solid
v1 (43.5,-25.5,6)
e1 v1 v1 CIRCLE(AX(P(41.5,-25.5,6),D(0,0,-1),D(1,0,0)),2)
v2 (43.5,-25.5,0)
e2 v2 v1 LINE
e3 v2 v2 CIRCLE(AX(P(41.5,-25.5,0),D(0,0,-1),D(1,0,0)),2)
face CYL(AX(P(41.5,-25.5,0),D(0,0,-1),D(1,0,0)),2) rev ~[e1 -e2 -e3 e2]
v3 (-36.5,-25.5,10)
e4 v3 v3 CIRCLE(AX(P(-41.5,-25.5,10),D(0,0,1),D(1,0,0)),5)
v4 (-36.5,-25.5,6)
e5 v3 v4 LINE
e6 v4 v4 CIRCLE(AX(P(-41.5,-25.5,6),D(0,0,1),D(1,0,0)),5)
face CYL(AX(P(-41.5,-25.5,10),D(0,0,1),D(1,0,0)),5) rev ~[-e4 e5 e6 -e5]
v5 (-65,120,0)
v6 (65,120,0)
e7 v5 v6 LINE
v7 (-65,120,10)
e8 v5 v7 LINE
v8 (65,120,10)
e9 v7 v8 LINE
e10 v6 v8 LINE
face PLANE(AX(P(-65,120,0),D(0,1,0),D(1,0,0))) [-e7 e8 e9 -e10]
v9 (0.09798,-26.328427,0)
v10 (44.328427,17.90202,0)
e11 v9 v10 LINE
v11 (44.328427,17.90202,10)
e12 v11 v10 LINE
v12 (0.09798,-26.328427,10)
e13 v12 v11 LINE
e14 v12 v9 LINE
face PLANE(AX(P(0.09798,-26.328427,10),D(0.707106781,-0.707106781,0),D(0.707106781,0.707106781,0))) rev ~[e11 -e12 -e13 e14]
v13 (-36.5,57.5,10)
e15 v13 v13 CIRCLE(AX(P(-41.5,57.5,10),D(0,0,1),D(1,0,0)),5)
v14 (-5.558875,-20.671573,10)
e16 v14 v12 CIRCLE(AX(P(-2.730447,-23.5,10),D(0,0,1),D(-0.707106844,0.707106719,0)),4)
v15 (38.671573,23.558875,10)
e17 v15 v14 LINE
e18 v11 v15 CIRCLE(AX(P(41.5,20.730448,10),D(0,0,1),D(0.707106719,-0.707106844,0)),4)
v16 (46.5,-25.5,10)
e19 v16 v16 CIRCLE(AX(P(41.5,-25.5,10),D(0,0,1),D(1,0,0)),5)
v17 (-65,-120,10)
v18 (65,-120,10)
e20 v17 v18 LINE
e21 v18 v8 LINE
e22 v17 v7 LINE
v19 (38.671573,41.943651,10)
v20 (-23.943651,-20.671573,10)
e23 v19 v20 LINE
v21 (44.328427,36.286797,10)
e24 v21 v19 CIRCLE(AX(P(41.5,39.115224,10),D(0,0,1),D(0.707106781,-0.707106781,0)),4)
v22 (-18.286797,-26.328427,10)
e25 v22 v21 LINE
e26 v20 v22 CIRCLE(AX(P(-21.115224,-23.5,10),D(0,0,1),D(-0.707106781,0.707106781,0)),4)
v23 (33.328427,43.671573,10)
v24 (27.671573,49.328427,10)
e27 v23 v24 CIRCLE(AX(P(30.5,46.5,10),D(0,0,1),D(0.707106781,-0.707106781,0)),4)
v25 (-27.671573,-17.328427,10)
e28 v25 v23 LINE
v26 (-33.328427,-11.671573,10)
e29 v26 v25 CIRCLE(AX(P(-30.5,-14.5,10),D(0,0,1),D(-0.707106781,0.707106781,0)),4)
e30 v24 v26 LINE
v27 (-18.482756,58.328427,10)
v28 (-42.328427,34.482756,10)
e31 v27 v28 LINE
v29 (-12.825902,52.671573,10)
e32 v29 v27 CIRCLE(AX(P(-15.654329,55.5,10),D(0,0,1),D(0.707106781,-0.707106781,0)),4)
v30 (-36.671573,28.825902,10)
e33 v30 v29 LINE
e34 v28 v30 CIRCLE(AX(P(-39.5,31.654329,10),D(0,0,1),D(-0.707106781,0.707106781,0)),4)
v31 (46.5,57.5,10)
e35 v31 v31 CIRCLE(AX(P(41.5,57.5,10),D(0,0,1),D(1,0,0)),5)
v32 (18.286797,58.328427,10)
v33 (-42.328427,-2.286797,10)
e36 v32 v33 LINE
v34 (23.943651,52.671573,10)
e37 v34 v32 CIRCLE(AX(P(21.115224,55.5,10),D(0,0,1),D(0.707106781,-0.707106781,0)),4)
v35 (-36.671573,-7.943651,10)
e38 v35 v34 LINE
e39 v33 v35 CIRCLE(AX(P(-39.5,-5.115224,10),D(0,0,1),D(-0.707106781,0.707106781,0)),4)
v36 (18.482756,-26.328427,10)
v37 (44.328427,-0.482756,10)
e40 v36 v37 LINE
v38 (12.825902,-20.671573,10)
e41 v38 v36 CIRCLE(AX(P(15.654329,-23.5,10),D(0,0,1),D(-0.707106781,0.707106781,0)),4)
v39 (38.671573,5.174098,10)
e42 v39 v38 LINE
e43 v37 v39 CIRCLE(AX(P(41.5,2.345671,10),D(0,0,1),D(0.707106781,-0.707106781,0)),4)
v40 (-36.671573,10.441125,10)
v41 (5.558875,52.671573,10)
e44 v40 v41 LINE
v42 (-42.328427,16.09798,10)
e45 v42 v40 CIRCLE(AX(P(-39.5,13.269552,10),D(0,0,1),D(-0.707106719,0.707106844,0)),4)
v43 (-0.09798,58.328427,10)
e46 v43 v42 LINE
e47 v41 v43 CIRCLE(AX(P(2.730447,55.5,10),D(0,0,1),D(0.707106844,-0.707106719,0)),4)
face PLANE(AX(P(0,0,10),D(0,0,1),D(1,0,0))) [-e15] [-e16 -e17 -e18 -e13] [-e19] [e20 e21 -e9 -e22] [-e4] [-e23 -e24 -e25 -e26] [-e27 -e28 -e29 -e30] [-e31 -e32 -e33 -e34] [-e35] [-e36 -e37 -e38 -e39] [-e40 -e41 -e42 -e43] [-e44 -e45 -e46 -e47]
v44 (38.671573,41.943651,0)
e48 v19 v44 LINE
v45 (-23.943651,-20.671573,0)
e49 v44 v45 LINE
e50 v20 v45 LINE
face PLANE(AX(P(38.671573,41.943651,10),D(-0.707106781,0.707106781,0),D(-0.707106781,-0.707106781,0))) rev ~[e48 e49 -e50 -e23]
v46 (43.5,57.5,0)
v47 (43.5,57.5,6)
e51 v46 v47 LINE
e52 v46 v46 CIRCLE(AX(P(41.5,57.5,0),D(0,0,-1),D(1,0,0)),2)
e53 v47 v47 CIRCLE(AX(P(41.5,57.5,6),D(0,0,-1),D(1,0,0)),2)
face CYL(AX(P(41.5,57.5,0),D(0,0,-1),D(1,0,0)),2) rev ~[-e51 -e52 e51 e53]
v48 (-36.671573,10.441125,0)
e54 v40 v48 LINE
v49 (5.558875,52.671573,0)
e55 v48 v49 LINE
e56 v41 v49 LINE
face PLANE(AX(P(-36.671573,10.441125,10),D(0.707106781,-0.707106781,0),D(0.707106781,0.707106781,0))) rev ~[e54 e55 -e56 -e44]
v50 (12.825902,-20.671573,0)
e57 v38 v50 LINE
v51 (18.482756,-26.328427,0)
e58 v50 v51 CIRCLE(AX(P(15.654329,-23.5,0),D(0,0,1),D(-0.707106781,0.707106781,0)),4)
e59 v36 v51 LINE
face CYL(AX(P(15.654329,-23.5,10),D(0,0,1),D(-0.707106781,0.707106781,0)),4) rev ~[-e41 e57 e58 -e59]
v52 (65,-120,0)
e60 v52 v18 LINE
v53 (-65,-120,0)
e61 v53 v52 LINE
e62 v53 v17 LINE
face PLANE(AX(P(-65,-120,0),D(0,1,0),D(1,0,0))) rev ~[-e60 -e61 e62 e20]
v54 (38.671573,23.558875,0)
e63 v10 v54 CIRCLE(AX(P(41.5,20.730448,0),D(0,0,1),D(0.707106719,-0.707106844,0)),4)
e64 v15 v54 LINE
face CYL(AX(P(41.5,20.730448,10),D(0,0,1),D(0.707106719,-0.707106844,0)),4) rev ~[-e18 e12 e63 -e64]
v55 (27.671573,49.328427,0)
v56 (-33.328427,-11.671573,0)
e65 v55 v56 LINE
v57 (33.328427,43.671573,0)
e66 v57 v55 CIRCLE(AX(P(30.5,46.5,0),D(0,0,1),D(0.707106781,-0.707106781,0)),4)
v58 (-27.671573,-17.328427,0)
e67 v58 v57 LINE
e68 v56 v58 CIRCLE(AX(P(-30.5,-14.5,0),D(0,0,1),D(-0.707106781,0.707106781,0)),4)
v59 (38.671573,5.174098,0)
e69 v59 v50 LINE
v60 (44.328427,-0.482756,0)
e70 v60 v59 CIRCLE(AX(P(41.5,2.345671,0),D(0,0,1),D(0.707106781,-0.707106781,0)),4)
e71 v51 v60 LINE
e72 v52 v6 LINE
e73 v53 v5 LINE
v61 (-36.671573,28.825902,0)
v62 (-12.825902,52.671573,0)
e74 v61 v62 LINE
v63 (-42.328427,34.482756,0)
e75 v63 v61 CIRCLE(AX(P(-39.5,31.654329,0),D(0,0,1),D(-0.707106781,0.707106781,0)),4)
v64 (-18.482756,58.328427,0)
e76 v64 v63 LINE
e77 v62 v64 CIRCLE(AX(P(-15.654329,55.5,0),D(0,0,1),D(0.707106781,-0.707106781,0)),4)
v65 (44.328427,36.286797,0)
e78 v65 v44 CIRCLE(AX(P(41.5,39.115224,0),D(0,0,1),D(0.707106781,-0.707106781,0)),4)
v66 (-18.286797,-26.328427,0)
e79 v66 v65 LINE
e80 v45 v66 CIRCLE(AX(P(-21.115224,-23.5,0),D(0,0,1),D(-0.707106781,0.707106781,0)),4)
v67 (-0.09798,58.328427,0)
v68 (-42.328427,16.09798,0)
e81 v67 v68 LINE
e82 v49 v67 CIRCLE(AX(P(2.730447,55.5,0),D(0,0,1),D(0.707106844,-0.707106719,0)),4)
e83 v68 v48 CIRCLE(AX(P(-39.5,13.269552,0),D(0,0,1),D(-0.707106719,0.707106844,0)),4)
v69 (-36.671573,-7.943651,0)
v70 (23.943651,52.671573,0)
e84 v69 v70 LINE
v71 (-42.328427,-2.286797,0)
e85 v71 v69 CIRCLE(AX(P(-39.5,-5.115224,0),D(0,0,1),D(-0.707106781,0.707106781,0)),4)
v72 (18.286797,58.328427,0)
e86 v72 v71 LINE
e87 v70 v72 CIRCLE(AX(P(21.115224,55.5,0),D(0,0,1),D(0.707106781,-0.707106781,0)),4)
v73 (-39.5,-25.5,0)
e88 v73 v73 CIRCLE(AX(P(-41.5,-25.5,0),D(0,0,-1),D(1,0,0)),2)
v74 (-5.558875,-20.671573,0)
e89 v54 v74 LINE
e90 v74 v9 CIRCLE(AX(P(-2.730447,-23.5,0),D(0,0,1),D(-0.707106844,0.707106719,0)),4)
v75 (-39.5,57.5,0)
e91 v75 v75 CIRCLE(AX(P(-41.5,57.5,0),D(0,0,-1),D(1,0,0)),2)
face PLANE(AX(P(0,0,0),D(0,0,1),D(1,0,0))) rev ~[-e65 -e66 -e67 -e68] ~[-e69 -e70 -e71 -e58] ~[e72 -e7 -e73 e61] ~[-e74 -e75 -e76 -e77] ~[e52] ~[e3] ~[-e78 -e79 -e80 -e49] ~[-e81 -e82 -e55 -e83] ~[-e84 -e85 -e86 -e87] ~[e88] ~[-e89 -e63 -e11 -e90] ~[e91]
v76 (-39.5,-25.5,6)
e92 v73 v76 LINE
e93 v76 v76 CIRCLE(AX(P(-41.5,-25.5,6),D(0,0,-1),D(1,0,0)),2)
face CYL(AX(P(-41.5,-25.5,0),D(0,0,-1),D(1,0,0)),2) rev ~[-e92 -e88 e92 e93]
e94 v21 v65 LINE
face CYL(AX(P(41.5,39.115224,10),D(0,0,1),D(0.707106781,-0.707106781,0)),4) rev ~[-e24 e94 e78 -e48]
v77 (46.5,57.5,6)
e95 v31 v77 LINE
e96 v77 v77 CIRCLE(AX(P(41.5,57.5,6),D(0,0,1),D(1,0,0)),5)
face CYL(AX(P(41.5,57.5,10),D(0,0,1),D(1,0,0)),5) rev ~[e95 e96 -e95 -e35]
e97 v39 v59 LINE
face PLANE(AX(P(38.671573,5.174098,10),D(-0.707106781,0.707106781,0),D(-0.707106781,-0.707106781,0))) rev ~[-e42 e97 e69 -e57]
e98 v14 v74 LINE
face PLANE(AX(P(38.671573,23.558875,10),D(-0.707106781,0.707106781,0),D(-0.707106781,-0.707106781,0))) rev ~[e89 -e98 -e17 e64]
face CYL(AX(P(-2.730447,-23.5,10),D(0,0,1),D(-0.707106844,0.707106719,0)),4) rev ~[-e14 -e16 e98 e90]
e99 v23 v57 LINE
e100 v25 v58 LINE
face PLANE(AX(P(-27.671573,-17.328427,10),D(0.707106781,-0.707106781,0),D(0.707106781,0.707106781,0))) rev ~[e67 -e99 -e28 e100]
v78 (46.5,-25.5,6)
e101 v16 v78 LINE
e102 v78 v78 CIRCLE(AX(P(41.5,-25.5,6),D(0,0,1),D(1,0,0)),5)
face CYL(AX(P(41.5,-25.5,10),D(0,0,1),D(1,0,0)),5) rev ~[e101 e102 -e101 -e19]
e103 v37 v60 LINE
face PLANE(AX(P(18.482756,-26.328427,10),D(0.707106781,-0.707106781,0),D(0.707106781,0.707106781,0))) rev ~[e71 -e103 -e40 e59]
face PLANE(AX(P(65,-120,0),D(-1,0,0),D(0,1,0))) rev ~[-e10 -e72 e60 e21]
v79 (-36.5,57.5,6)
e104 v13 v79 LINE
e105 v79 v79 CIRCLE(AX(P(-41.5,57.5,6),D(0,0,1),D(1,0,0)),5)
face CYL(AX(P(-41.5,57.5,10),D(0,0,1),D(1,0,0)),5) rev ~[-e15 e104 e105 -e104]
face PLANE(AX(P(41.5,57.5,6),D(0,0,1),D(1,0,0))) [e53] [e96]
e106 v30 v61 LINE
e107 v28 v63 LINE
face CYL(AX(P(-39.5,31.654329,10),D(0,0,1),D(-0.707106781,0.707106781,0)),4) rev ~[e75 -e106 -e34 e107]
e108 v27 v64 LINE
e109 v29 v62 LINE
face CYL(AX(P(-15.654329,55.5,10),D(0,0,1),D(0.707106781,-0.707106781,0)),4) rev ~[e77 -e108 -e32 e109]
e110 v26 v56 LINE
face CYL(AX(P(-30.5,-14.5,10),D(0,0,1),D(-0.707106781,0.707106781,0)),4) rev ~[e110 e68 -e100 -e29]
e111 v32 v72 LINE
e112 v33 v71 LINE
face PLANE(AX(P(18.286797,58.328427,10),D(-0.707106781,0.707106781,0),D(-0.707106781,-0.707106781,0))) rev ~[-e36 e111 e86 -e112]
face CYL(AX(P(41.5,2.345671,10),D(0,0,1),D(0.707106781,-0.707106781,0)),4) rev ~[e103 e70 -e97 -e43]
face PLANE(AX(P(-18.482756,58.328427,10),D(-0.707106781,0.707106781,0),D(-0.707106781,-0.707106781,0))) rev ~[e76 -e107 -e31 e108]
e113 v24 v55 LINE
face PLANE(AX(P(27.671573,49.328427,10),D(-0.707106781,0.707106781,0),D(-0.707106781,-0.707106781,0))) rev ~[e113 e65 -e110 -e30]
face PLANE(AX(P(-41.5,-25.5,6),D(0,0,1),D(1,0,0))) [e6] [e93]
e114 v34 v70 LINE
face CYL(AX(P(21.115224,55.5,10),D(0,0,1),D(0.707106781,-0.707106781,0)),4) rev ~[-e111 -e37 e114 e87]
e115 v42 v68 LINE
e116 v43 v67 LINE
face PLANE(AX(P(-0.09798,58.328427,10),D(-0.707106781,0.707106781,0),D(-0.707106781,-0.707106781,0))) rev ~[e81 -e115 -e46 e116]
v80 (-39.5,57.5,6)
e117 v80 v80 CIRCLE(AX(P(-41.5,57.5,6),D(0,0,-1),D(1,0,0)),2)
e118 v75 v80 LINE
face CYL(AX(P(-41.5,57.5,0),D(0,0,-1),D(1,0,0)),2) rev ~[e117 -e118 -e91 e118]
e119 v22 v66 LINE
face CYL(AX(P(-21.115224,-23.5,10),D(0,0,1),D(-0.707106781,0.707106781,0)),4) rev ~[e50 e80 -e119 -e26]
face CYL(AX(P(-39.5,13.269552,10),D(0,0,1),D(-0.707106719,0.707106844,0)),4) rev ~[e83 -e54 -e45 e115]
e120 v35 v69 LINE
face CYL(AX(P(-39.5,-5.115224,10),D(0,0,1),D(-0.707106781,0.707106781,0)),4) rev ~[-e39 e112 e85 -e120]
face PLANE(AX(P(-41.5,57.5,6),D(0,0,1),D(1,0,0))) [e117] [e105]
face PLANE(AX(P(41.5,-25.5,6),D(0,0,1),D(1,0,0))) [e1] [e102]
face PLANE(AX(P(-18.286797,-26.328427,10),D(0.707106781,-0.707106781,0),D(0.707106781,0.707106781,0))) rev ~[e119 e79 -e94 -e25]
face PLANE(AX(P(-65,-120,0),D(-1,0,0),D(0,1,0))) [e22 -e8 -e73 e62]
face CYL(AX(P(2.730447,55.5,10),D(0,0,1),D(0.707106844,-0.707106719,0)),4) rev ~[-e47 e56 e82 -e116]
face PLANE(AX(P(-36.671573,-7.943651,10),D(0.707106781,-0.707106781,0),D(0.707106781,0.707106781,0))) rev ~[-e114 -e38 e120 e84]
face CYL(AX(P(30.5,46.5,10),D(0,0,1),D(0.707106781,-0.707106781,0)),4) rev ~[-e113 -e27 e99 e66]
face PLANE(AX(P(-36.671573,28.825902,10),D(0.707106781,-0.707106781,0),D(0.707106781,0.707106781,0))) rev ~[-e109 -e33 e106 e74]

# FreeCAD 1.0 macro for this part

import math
import FreeCAD as App
import Part
import Sketcher

V = App.Vector
Q = App.Units.Quantity

doc = App.newDocument("Part")
body = doc.addObject("PartDesign::Body", "Body")

# Sketch on XY plane
sketch1 = body.newObject("Sketcher::SketchObject", "Sketch")
sketch1.AttachmentSupport = (doc.getObject("XY_Plane"), [""])
sketch1.MapMode = "FlatFace"
sketch1.addGeometry([
    Part.LineSegment(V(-65, 120, 0), V(-65, -120, 0)),
    Part.LineSegment(V(-65, -120, 0), V(65, -120, 0)),
    Part.LineSegment(V(65, -120, 0), V(65, 120, 0)),
    Part.LineSegment(V(65, 120, 0), V(-65, 120, 0)),
], False)
sketch1.addConstraint([
    Sketcher.Constraint("Coincident", 0, 2, 1, 1),
    Sketcher.Constraint("Coincident", 1, 2, 2, 1),
    Sketcher.Constraint("Coincident", 2, 2, 3, 1),
    Sketcher.Constraint("Coincident", 3, 2, 0, 1),
    Sketcher.Constraint("Vertical", 0),
    Sketcher.Constraint("Horizontal", 1),
    Sketcher.Constraint("Vertical", 2),
    Sketcher.Constraint("Horizontal", 3),
    Sketcher.Constraint("Symmetric", 0, 2, 2, 2, -1, 1),
    Sketcher.Constraint("DistanceX", 1, 1, 1, 2, 130.0),
    Sketcher.Constraint("DistanceY", 0, 2, 0, 1, 240.0),
])
pad1 = body.newObject("PartDesign::Pad", "Pad")
pad1.Profile = sketch1
pad1.Length = 10

# Sketch on XY plane
sketch2 = body.newObject("Sketcher::SketchObject", "Sketch001")
sketch2.AttachmentSupport = (doc.getObject("XY_Plane"), [""])
sketch2.MapMode = "FlatFace"
sketch2.addGeometry([
    Part.Circle(V(-41.5, 57.5, 0), V(0, 0, 1), 2),
    Part.Circle(V(-41.5, -25.5, 0), V(0, 0, 1), 2),
    Part.Circle(V(41.5, -25.5, 0), V(0, 0, 1), 2),
    Part.Circle(V(41.5, 57.5, 0), V(0, 0, 1), 2),
], False)
sketch2.addConstraint([
    Sketcher.Constraint("Equal", 0, 1),
    Sketcher.Constraint("Equal", 1, 2),
    Sketcher.Constraint("Equal", 2, 3),
    Sketcher.Constraint("Symmetric", 1, 3, 2, 3, -2),
    Sketcher.Constraint("Symmetric", 0, 3, 3, 3, -2),
    Sketcher.Constraint("Vertical", 0, 3, 1, 3),
    Sketcher.Constraint("Diameter", 0, 4.0),
    Sketcher.Constraint("DistanceY", 1, 3, 0, 3, 83.0),
    Sketcher.Constraint("DistanceX", 1, 3, 2, 3, 83.0),
    Sketcher.Constraint("DistanceY", -1, 1, 0, 3, 57.5),
])
pocket1 = body.newObject("PartDesign::Pocket", "Pocket")
pocket1.Profile = sketch2
pocket1.Type = "ThroughAll"
pocket1.Midplane = True

# Sketch on XY plane
sketch3 = body.newObject("Sketcher::SketchObject", "Sketch002")
sketch3.AttachmentSupport = (doc.getObject("XY_Plane"), [""])
sketch3.MapMode = "FlatFace"
sketch3.AttachmentOffset = App.Placement(V(0, 0, 10), App.Rotation())
sketch3.addGeometry([
    Part.Circle(V(-41.5, 57.5, 0), V(0, 0, 1), 5),
    Part.Circle(V(41.5, 57.5, 0), V(0, 0, 1), 5),
    Part.Circle(V(-41.5, -25.5, 0), V(0, 0, 1), 5),
    Part.Circle(V(41.5, -25.5, 0), V(0, 0, 1), 5),
], False)
sketch3.addConstraint([
    Sketcher.Constraint("Equal", 0, 1),
    Sketcher.Constraint("Equal", 1, 2),
    Sketcher.Constraint("Equal", 2, 3),
    Sketcher.Constraint("Symmetric", 0, 3, 1, 3, -2),
    Sketcher.Constraint("Symmetric", 2, 3, 3, 3, -2),
    Sketcher.Constraint("Vertical", 0, 3, 2, 3),
    Sketcher.Constraint("Diameter", 0, 10.0),
    Sketcher.Constraint("DistanceX", 0, 3, 1, 3, 83.0),
    Sketcher.Constraint("DistanceY", 2, 3, 0, 3, 83.0),
    Sketcher.Constraint("DistanceY", -1, 1, 0, 3, 57.5),
])
pocket2 = body.newObject("PartDesign::Pocket", "Pocket001")
pocket2.Profile = sketch3
pocket2.Length = 4

# Sketch on XY plane
sketch4 = body.newObject("Sketcher::SketchObject", "Sketch003")
sketch4.AttachmentSupport = (doc.getObject("XY_Plane"), [""])
sketch4.MapMode = "FlatFace"
sketch4.AttachmentOffset = App.Placement(V(0, 0, 10), App.Rotation())
sketch4.addGeometry([
    Part.ArcOfCircle(Part.Circle(V(-30.5, -14.5, 0), V(0, 0, 1), 4), math.radians(135), math.radians(315)),  # 0
    Part.LineSegment(V(-27.671573, -17.328427, 0), V(33.328427, 43.671573, 0)),  # 1
    Part.ArcOfCircle(Part.Circle(V(30.5, 46.5, 0), V(0, 0, 1), 4), math.radians(-45), math.radians(135)),  # 2
    Part.LineSegment(V(27.671573, 49.328427, 0), V(-33.328427, -11.671573, 0)),  # 3
    Part.ArcOfCircle(Part.Circle(V(-39.5, -5.115224, 0), V(0, 0, 1), 4), math.radians(135), math.radians(315)),  # 4
    Part.LineSegment(V(-36.671573, -7.943651, 0), V(23.943651, 52.671573, 0)),  # 5
    Part.ArcOfCircle(Part.Circle(V(21.115224, 55.5, 0), V(0, 0, 1), 4), math.radians(-45), math.radians(135)),  # 6
    Part.LineSegment(V(18.286797, 58.328427, 0), V(-42.328427, -2.286797, 0)),  # 7
    Part.ArcOfCircle(Part.Circle(V(-39.5, 13.269552, 0), V(0, 0, 1), 4), math.radians(134.999995), math.radians(314.999995)),  # 8
    Part.LineSegment(V(-36.671573, 10.441125, 0), V(5.558875, 52.671573, 0)),  # 9
    Part.ArcOfCircle(Part.Circle(V(2.730447, 55.5, 0), V(0, 0, 1), 4), math.radians(-44.999995), math.radians(135.000005)),  # 10
    Part.LineSegment(V(-0.09798, 58.328427, 0), V(-42.328427, 16.09798, 0)),  # 11
    Part.ArcOfCircle(Part.Circle(V(-39.5, 31.654329, 0), V(0, 0, 1), 4), math.radians(135), math.radians(315)),  # 12
    Part.LineSegment(V(-36.671573, 28.825902, 0), V(-12.825902, 52.671573, 0)),  # 13
    Part.ArcOfCircle(Part.Circle(V(-15.654329, 55.5, 0), V(0, 0, 1), 4), math.radians(-45), math.radians(135)),  # 14
    Part.LineSegment(V(-18.482756, 58.328427, 0), V(-42.328427, 34.482756, 0)),  # 15
    Part.ArcOfCircle(Part.Circle(V(-21.115224, -23.5, 0), V(0, 0, 1), 4), math.radians(135), math.radians(315)),  # 16
    Part.LineSegment(V(-18.286797, -26.328427, 0), V(44.328427, 36.286797, 0)),  # 17
    Part.ArcOfCircle(Part.Circle(V(41.5, 39.115224, 0), V(0, 0, 1), 4), math.radians(-45), math.radians(135)),  # 18
    Part.LineSegment(V(38.671573, 41.943651, 0), V(-23.943651, -20.671573, 0)),  # 19
    Part.ArcOfCircle(Part.Circle(V(-2.730447, -23.5, 0), V(0, 0, 1), 4), math.radians(135.000005), math.radians(315.000005)),  # 20
    Part.LineSegment(V(0.09798, -26.328427, 0), V(44.328427, 17.90202, 0)),  # 21
    Part.ArcOfCircle(Part.Circle(V(41.5, 20.730448, 0), V(0, 0, 1), 4), math.radians(-45.000005), math.radians(134.999995)),  # 22
    Part.LineSegment(V(38.671573, 23.558875, 0), V(-5.558875, -20.671573, 0)),  # 23
    Part.ArcOfCircle(Part.Circle(V(15.654329, -23.5, 0), V(0, 0, 1), 4), math.radians(135), math.radians(315)),  # 24
    Part.LineSegment(V(18.482756, -26.328427, 0), V(44.328427, -0.482756, 0)),  # 25
    Part.ArcOfCircle(Part.Circle(V(41.5, 2.345671, 0), V(0, 0, 1), 4), math.radians(-45), math.radians(135)),  # 26
    Part.LineSegment(V(38.671573, 5.174098, 0), V(12.825902, -20.671573, 0)),  # 27
], False)
sketch4.addConstraint([
    Sketcher.Constraint("Tangent", 0, 2, 1, 1),
    Sketcher.Constraint("Tangent", 1, 2, 2, 1),
    Sketcher.Constraint("Tangent", 2, 2, 3, 1),
    Sketcher.Constraint("Tangent", 3, 2, 0, 1),
    Sketcher.Constraint("Tangent", 4, 2, 5, 1),
    Sketcher.Constraint("Tangent", 5, 2, 6, 1),
    Sketcher.Constraint("Tangent", 6, 2, 7, 1),
    Sketcher.Constraint("Tangent", 7, 2, 4, 1),
    Sketcher.Constraint("Tangent", 8, 2, 9, 1),
    Sketcher.Constraint("Tangent", 9, 2, 10, 1),
    Sketcher.Constraint("Tangent", 10, 2, 11, 1),
    Sketcher.Constraint("Tangent", 11, 2, 8, 1),
    Sketcher.Constraint("Tangent", 12, 2, 13, 1),
    Sketcher.Constraint("Tangent", 13, 2, 14, 1),
    Sketcher.Constraint("Tangent", 14, 2, 15, 1),
    Sketcher.Constraint("Tangent", 15, 2, 12, 1),
    Sketcher.Constraint("Tangent", 16, 2, 17, 1),
    Sketcher.Constraint("Tangent", 17, 2, 18, 1),
    Sketcher.Constraint("Tangent", 18, 2, 19, 1),
    Sketcher.Constraint("Tangent", 19, 2, 16, 1),
    Sketcher.Constraint("Tangent", 20, 2, 21, 1),
    Sketcher.Constraint("Tangent", 21, 2, 22, 1),
    Sketcher.Constraint("Tangent", 22, 2, 23, 1),
    Sketcher.Constraint("Tangent", 23, 2, 20, 1),
    Sketcher.Constraint("Tangent", 24, 2, 25, 1),
    Sketcher.Constraint("Tangent", 25, 2, 26, 1),
    Sketcher.Constraint("Tangent", 26, 2, 27, 1),
    Sketcher.Constraint("Tangent", 27, 2, 24, 1),
    Sketcher.Constraint("Equal", 0, 2),
    Sketcher.Constraint("Equal", 2, 4),
    Sketcher.Constraint("Equal", 4, 6),
    Sketcher.Constraint("Equal", 6, 8),
    Sketcher.Constraint("Equal", 8, 10),
    Sketcher.Constraint("Equal", 10, 12),
    Sketcher.Constraint("Equal", 12, 14),
    Sketcher.Constraint("Equal", 14, 16),
    Sketcher.Constraint("Equal", 16, 18),
    Sketcher.Constraint("Equal", 18, 20),
    Sketcher.Constraint("Equal", 20, 22),
    Sketcher.Constraint("Equal", 22, 24),
    Sketcher.Constraint("Equal", 24, 26),
    Sketcher.Constraint("Parallel", 3, 5),
    Sketcher.Constraint("Parallel", 7, 9),
    Sketcher.Constraint("Parallel", 11, 13),
    Sketcher.Constraint("Parallel", 15, 17),
    Sketcher.Constraint("Parallel", 19, 21),
    Sketcher.Constraint("Parallel", 23, 25),
    Sketcher.Constraint("Horizontal", 6, 3, 10, 3),
    Sketcher.Constraint("Horizontal", 10, 3, 14, 3),
    Sketcher.Constraint("Horizontal", 16, 3, 20, 3),
    Sketcher.Constraint("Horizontal", 20, 3, 24, 3),
    Sketcher.Constraint("Vertical", 4, 3, 8, 3),
    Sketcher.Constraint("Vertical", 8, 3, 12, 3),
    Sketcher.Constraint("Vertical", 18, 3, 22, 3),
    Sketcher.Constraint("Vertical", 22, 3, 26, 3),
    Sketcher.Constraint("Radius", 0, 4.0),
    Sketcher.Constraint("Angle", 1, Q("45 deg")),
    Sketcher.Constraint("DistanceX", 0, 3, 2, 3, 61.0),
    Sketcher.Constraint("DistanceX", 4, 3, 0, 3, 9.0),
    Sketcher.Constraint("DistanceY", 2, 3, 6, 3, 9.0),
    Sketcher.Constraint("DistanceY", 16, 3, 0, 3, 9.0),
    Sketcher.Constraint("DistanceX", 2, 3, 18, 3, 11.0),
    Sketcher.Constraint("DistanceX", 0, 3, -1, 1, 30.5),
    Sketcher.Constraint("DistanceY", 0, 3, -1, 1, 14.5),
    Sketcher.Constraint("Distance", 17, 88.551299),
    Sketcher.Constraint("Distance", 21, 62.551298),
    Sketcher.Constraint("Distance", 25, 36.551298),
    Sketcher.Constraint("DistanceY", -1, 1, 12, 2, 28.825902),
    Sketcher.Constraint("DistanceY", 7, 2, 12, 2, 31.112699),
    Sketcher.Constraint("Distance", 11, 59.722871),
])
pocket3 = body.newObject("PartDesign::Pocket", "Pocket002")
pocket3.Profile = sketch4
pocket3.Type = "ThroughAll"
pocket3.Midplane = True

doc.recompute()
